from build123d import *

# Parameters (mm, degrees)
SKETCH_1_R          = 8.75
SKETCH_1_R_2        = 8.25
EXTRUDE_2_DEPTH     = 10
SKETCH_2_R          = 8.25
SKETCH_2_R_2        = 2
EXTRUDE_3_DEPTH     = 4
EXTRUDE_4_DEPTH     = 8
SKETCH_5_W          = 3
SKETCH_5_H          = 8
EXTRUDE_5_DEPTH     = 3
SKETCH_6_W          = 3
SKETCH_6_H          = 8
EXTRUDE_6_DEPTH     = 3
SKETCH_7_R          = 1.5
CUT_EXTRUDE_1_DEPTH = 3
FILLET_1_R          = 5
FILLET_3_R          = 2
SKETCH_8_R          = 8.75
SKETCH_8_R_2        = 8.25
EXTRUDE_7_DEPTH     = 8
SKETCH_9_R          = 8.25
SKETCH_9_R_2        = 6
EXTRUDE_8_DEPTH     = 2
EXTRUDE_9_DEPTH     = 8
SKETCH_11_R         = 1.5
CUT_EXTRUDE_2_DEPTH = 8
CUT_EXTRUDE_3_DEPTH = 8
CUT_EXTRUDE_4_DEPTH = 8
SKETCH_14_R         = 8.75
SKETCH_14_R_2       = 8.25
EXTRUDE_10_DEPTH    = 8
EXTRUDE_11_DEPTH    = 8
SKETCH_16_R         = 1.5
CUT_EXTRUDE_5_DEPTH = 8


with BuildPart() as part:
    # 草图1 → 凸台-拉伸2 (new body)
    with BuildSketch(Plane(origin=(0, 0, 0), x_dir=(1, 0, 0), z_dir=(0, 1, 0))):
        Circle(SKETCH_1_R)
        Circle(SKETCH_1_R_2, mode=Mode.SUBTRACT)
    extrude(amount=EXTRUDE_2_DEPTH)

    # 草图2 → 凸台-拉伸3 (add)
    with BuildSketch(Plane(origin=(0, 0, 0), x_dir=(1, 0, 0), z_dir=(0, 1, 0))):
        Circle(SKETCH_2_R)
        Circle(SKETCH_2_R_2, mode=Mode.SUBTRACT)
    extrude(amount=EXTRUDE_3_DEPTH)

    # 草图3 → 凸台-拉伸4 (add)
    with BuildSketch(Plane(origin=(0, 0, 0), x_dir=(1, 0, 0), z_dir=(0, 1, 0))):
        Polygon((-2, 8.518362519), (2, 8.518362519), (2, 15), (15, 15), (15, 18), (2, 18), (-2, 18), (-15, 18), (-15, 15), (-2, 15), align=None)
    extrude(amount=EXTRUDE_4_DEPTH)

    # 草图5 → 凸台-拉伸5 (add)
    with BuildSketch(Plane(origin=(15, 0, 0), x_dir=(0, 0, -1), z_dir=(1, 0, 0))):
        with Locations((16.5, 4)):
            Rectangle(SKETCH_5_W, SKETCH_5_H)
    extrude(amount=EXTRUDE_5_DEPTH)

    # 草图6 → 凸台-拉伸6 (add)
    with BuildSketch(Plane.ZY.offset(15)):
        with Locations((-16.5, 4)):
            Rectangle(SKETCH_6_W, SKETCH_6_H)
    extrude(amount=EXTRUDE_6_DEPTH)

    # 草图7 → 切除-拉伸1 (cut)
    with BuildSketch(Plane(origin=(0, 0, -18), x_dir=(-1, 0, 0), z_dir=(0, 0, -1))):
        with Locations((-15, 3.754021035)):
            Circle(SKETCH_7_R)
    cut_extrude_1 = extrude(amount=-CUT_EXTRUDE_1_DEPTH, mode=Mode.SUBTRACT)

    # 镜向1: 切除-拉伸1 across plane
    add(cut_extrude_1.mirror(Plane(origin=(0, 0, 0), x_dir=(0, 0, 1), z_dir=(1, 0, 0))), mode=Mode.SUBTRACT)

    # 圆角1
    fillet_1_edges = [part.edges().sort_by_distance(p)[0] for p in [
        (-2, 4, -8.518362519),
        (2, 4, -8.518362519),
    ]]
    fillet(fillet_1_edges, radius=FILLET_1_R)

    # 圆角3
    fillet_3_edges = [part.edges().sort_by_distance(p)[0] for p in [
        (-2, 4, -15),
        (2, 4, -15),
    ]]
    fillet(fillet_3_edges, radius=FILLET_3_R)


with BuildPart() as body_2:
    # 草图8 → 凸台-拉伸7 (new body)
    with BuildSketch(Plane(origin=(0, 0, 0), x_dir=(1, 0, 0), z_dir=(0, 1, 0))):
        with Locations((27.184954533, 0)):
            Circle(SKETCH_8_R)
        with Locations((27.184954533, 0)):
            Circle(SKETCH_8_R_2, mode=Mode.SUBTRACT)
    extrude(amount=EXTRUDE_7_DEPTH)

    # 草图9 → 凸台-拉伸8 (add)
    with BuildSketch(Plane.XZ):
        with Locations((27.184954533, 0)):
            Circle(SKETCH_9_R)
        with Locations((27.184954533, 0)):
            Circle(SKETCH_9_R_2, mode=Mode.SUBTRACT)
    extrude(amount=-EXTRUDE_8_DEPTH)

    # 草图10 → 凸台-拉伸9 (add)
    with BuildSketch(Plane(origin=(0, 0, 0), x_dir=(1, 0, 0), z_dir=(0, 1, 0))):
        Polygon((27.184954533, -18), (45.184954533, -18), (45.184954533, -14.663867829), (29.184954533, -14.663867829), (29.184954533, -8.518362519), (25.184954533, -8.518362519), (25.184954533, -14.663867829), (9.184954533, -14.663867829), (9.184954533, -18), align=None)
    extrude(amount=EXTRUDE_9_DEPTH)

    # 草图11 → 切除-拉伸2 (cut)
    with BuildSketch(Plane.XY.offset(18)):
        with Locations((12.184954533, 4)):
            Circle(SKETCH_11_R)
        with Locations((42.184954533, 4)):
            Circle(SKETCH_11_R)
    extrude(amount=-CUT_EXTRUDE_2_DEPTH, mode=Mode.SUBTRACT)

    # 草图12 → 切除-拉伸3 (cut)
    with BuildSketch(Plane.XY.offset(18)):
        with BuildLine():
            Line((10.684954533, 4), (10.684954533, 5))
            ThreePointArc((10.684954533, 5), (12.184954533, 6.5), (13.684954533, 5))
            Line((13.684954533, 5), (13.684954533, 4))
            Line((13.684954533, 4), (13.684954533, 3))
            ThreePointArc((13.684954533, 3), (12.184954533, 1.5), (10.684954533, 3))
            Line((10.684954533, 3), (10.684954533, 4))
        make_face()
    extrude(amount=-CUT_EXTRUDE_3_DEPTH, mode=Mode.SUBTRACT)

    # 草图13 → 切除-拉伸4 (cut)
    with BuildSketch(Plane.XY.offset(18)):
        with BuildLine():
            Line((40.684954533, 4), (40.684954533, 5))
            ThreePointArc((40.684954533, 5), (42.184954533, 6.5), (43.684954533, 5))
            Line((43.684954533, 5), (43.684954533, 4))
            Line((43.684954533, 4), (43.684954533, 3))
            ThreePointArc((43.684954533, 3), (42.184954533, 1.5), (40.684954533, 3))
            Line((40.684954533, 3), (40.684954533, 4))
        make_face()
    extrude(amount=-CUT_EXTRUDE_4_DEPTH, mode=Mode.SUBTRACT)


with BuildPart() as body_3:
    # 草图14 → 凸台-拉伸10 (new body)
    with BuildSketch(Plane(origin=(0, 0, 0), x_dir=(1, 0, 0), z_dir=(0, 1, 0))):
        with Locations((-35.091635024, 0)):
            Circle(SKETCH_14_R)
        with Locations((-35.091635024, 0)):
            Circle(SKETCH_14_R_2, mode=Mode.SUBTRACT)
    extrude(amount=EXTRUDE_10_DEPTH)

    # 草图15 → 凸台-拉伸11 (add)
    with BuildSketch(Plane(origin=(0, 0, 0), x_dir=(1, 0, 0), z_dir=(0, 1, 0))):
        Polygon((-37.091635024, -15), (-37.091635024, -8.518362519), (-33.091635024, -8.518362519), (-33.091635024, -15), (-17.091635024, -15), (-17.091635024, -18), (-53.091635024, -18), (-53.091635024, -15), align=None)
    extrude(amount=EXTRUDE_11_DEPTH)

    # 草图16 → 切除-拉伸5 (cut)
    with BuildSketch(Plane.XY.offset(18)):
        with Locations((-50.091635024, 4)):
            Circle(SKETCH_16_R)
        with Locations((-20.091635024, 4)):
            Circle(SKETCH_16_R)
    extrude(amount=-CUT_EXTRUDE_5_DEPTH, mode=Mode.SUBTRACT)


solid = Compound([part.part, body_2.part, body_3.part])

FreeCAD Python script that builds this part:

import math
import FreeCAD as App
import Part
import Sketcher
Q = App.Units.Quantity


def edges_at(feature, points):
    """Names of the edges that pass closest to the given points."""
    edges = feature.Shape.Edges
    near = lambda p: min(range(len(edges)), key=lambda i: edges[i].distToShape(Part.Vertex(*p))[0])
    return sorted({f"Edge{near(p) + 1}" for p in points})


def add_polygon(sketch, points):
    """Adds a closed chain of lines whose ends are joined by coincident constraints."""
    first, n = sketch.GeometryCount, len(points)
    for a, b in zip(points, points[1:] + points[:1]):
        sketch.addGeometry(Part.LineSegment(App.Vector(*a, 0), App.Vector(*b, 0)), False)
    for i in range(n):
        sketch.addConstraint(Sketcher.Constraint("Coincident", first + i, 2, first + (i + 1) % n, 1))

doc = App.newDocument("Part")
body = doc.addObject("PartDesign::Body", "Body")

# Sketch on XZ plane
sketch1 = body.newObject("Sketcher::SketchObject", "Sketch")
sketch1.AttachmentSupport = (doc.getObject("XZ_Plane"), [""])
sketch1.MapMode = "FlatFace"
sketch1.addGeometry(Part.Circle(App.Vector(0, 0, 0), App.Vector(0, 0, 1), 8.75), False)
sketch1.addGeometry(Part.Circle(App.Vector(0, 0, 0), App.Vector(0, 0, 1), 8.25), False)
sketch1.addConstraint(Sketcher.Constraint("Coincident", 0, 3, -1, 1))
sketch1.addConstraint(Sketcher.Constraint("Coincident", 1, 3, -1, 1))
sketch1.addConstraint(Sketcher.Constraint("Diameter", 0, Q("17.5 mm")))
sketch1.addConstraint(Sketcher.Constraint("Diameter", 1, Q("16.5 mm")))
pad1 = body.newObject("PartDesign::Pad", "Pad")
pad1.Profile = sketch1
pad1.Length = 10
pad1.Reversed = True

# Sketch on XZ plane
sketch2 = body.newObject("Sketcher::SketchObject", "Sketch001")
sketch2.AttachmentSupport = (doc.getObject("XZ_Plane"), [""])
sketch2.MapMode = "FlatFace"
sketch2.addGeometry(Part.Circle(App.Vector(0, 0, 0), App.Vector(0, 0, 1), 8.25), False)
sketch2.addGeometry(Part.Circle(App.Vector(0, 0, 0), App.Vector(0, 0, 1), 2), False)
sketch2.addConstraint(Sketcher.Constraint("Coincident", 0, 3, -1, 1))
sketch2.addConstraint(Sketcher.Constraint("Coincident", 1, 3, -1, 1))
sketch2.addConstraint(Sketcher.Constraint("Diameter", 1, Q("4 mm")))
sketch2.addConstraint(Sketcher.Constraint("Diameter", 0, Q("16.5 mm")))
pad2 = body.newObject("PartDesign::Pad", "Pad001")
pad2.Profile = sketch2
pad2.Length = 4
pad2.Reversed = True

# Sketch on XZ plane
sketch3 = body.newObject("Sketcher::SketchObject", "Sketch002")
sketch3.AttachmentSupport = (doc.getObject("XZ_Plane"), [""])
sketch3.MapMode = "FlatFace"
add_polygon(sketch3, [(-2, -8.518363), (2, -8.518363), (2, -15), (15, -15), (15, -18), (-15, -18), (-15, -15), (-2, -15)])  # lines 0-7
sketch3.addConstraint(Sketcher.Constraint("Horizontal", 0))
sketch3.addConstraint(Sketcher.Constraint("Vertical", 1))
sketch3.addConstraint(Sketcher.Constraint("Horizontal", 2))
sketch3.addConstraint(Sketcher.Constraint("Vertical", 3))
sketch3.addConstraint(Sketcher.Constraint("Horizontal", 4))
sketch3.addConstraint(Sketcher.Constraint("Vertical", 5))
sketch3.addConstraint(Sketcher.Constraint("Horizontal", 6))
sketch3.addConstraint(Sketcher.Constraint("Vertical", 7))
sketch3.addConstraint(Sketcher.Constraint("Symmetric", 2, 2, 5, 2, -2))
sketch3.addConstraint(Sketcher.Constraint("Equal", 2, 6))
sketch3.addConstraint(Sketcher.Constraint("DistanceX", 0, 1, 0, 2, Q("4 mm")))
sketch3.addConstraint(Sketcher.Constraint("DistanceX", 2, 1, 2, 2, Q("13 mm")))
sketch3.addConstraint(Sketcher.Constraint("DistanceY", 3, 2, 3, 1, Q("3 mm")))
sketch3.addConstraint(Sketcher.Constraint("DistanceY", 1, 2, -1, 1, Q("15 mm")))
sketch3.addConstraint(Sketcher.Constraint("DistanceY", 1, 2, 1, 1, Q("6.481637 mm")))
pad3 = body.newObject("PartDesign::Pad", "Pad002")
pad3.Profile = sketch3
pad3.Length = 8
pad3.Reversed = True

# Sketch on YZ plane
sketch4 = body.newObject("Sketcher::SketchObject", "Sketch003")
sketch4.AttachmentSupport = (doc.getObject("YZ_Plane"), [""])
sketch4.MapMode = "FlatFace"
sketch4.AttachmentOffset = App.Placement(App.Vector(0, 0, 15), App.Rotation())
add_polygon(sketch4, [(8, -15), (0, -15), (0, -18), (8, -18)])  # lines 0-3
sketch4.addConstraint(Sketcher.Constraint("Horizontal", 0))
sketch4.addConstraint(Sketcher.Constraint("Vertical", 1))
sketch4.addConstraint(Sketcher.Constraint("Horizontal", 2))
sketch4.addConstraint(Sketcher.Constraint("Vertical", 3))
sketch4.addConstraint(Sketcher.Constraint("PointOnObject", 0, 2, -2))
sketch4.addConstraint(Sketcher.Constraint("DistanceX", 0, 2, 0, 1, Q("8 mm")))
sketch4.addConstraint(Sketcher.Constraint("DistanceY", 1, 2, 1, 1, Q("3 mm")))
sketch4.addConstraint(Sketcher.Constraint("DistanceY", 0, 2, -1, 1, Q("15 mm")))
pad4 = body.newObject("PartDesign::Pad", "Pad003")
pad4.Profile = sketch4
pad4.Length = 3

# Sketch on YZ plane
sketch5 = body.newObject("Sketcher::SketchObject", "Sketch004")
sketch5.AttachmentSupport = (doc.getObject("YZ_Plane"), [""])
sketch5.MapMode = "FlatFace"
sketch5.AttachmentOffset = App.Placement(App.Vector(0, 0, -15), App.Rotation())
add_polygon(sketch5, [(8, -18), (0, -18), (0, -15), (8, -15)])  # lines 0-3
sketch5.addConstraint(Sketcher.Constraint("Horizontal", 0))
sketch5.addConstraint(Sketcher.Constraint("Vertical", 1))
sketch5.addConstraint(Sketcher.Constraint("Horizontal", 2))
sketch5.addConstraint(Sketcher.Constraint("Vertical", 3))
sketch5.addConstraint(Sketcher.Constraint("PointOnObject", 0, 2, -2))
sketch5.addConstraint(Sketcher.Constraint("DistanceX", 0, 2, 0, 1, Q("8 mm")))
sketch5.addConstraint(Sketcher.Constraint("DistanceY", 1, 1, 1, 2, Q("3 mm")))
sketch5.addConstraint(Sketcher.Constraint("DistanceY", 0, 2, -1, 1, Q("18 mm")))
pad5 = body.newObject("PartDesign::Pad", "Pad004")
pad5.Profile = sketch5
pad5.Length = 3
pad5.Reversed = True

# Sketch on XY plane
sketch6 = body.newObject("Sketcher::SketchObject", "Sketch005")
sketch6.AttachmentSupport = (doc.getObject("XY_Plane"), [""])
sketch6.MapMode = "FlatFace"
sketch6.AttachmentOffset = App.Placement(App.Vector(0, 0, -18), App.Rotation())
sketch6.addGeometry(Part.Circle(App.Vector(15, 3.754021, 0), App.Vector(0, 0, 1), 1.5), False)
sketch6.addConstraint(Sketcher.Constraint("Diameter", 0, Q("3 mm")))
sketch6.addConstraint(Sketcher.Constraint("DistanceX", -1, 1, 0, 3, Q("15 mm")))
sketch6.addConstraint(Sketcher.Constraint("DistanceY", -1, 1, 0, 3, Q("3.754021 mm")))
pocket1 = body.newObject("PartDesign::Pocket", "Pocket")
pocket1.Profile = sketch6
pocket1.Length = 3
pocket1.Reversed = True
doc.recompute()

mirrored = body.newObject("PartDesign::Mirrored", "Mirrored")
mirrored.Originals = [pocket1]
mirrored.MirrorPlane = (doc.getObject("YZ_Plane"), [""])
body.Tip = mirrored
doc.recompute()

fillet = body.newObject("PartDesign::Fillet", "Fillet")
fillet.Base = (mirrored, edges_at(mirrored, [(-2, 4, -8.518), (2, 4, -8.518)]))
fillet.Radius = 5
doc.recompute()

fillet2 = body.newObject("PartDesign::Fillet", "Fillet001")
fillet2.Base = (fillet, edges_at(fillet, [(-2, 4, -15), (2, 4, -15)]))
fillet2.Radius = 2
body2 = doc.addObject("PartDesign::Body", "Body001")

# Sketch on XZ plane
sketch7 = body2.newObject("Sketcher::SketchObject", "Sketch006")
sketch7.AttachmentSupport = (doc.getObject("XZ_Plane001"), [""])
sketch7.MapMode = "FlatFace"
sketch7.addGeometry(Part.Circle(App.Vector(27.184955, 0, 0), App.Vector(0, 0, 1), 8.75), False)
sketch7.addGeometry(Part.Circle(App.Vector(27.184955, 0, 0), App.Vector(0, 0, 1), 8.25), False)
sketch7.addConstraint(Sketcher.Constraint("Coincident", 1, 3, 0, 3))
sketch7.addConstraint(Sketcher.Constraint("PointOnObject", 0, 3, -1))
sketch7.addConstraint(Sketcher.Constraint("Diameter", 0, Q("17.5 mm")))
sketch7.addConstraint(Sketcher.Constraint("Diameter", 1, Q("16.5 mm")))
sketch7.addConstraint(Sketcher.Constraint("DistanceX", -1, 1, 0, 3, Q("27.184955 mm")))
pad6 = body2.newObject("PartDesign::Pad", "Pad005")
pad6.Profile = sketch7
pad6.Length = 8
pad6.Reversed = True

# Sketch on XZ plane
sketch8 = body2.newObject("Sketcher::SketchObject", "Sketch007")
sketch8.AttachmentSupport = (doc.getObject("XZ_Plane001"), [""])
sketch8.MapMode = "FlatFace"
sketch8.addGeometry(Part.Circle(App.Vector(27.184955, 0, 0), App.Vector(0, 0, 1), 8.25), False)
sketch8.addGeometry(Part.Circle(App.Vector(27.184955, 0, 0), App.Vector(0, 0, 1), 6), False)
sketch8.addConstraint(Sketcher.Constraint("Coincident", 1, 3, 0, 3))
sketch8.addConstraint(Sketcher.Constraint("PointOnObject", 0, 3, -1))
sketch8.addConstraint(Sketcher.Constraint("Diameter", 1, Q("12 mm")))
sketch8.addConstraint(Sketcher.Constraint("Diameter", 0, Q("16.5 mm")))
sketch8.addConstraint(Sketcher.Constraint("DistanceX", -1, 1, 0, 3, Q("27.184955 mm")))
pad7 = body2.newObject("PartDesign::Pad", "Pad006")
pad7.Profile = sketch8
pad7.Length = 2
pad7.Reversed = True

# Sketch on XZ plane
sketch9 = body2.newObject("Sketcher::SketchObject", "Sketch008")
sketch9.AttachmentSupport = (doc.getObject("XZ_Plane001"), [""])
sketch9.MapMode = "FlatFace"
add_polygon(sketch9, [(45.184955, 18), (45.184955, 14.663868), (29.184955, 14.663868), (29.184955, 8.518363), (25.184955, 8.518363), (25.184955, 14.663868), (9.184955, 14.663868), (9.184955, 18)])  # lines 0-7
sketch9.addConstraint(Sketcher.Constraint("Vertical", 0))
sketch9.addConstraint(Sketcher.Constraint("Horizontal", 1))
sketch9.addConstraint(Sketcher.Constraint("Vertical", 2))
sketch9.addConstraint(Sketcher.Constraint("Horizontal", 3))
sketch9.addConstraint(Sketcher.Constraint("Vertical", 4))
sketch9.addConstraint(Sketcher.Constraint("Horizontal", 5))
sketch9.addConstraint(Sketcher.Constraint("Vertical", 6))
sketch9.addConstraint(Sketcher.Constraint("Horizontal", 7))
sketch9.addConstraint(Sketcher.Constraint("Horizontal", 1, 2, 4, 2))
sketch9.addConstraint(Sketcher.Constraint("Equal", 1, 5))
sketch9.addConstraint(Sketcher.Constraint("DistanceX", 1, 2, 1, 1, Q("16 mm")))
sketch9.addConstraint(Sketcher.Constraint("DistanceX", 3, 2, 3, 1, Q("4 mm")))
sketch9.addConstraint(Sketcher.Constraint("DistanceY", -1, 1, 6, 2, Q("18 mm")))
sketch9.addConstraint(Sketcher.Constraint("DistanceY", 0, 2, 0, 1, Q("3.336132 mm")))
sketch9.addConstraint(Sketcher.Constraint("DistanceY", 2, 2, 2, 1, Q("6.145505 mm")))
sketch9.addConstraint(Sketcher.Constraint("DistanceX", -1, 1, 0, 2, Q("45.184955 mm")))
pad8 = body2.newObject("PartDesign::Pad", "Pad007")
pad8.Profile = sketch9
pad8.Length = 8
pad8.Reversed = True

# Sketch on XY plane
sketch10 = body2.newObject("Sketcher::SketchObject", "Sketch009")
sketch10.AttachmentSupport = (doc.getObject("XY_Plane001"), [""])
sketch10.MapMode = "FlatFace"
sketch10.AttachmentOffset = App.Placement(App.Vector(0, 0, 18), App.Rotation())
sketch10.addGeometry(Part.Circle(App.Vector(12.184955, 4, 0), App.Vector(0, 0, 1), 1.5), False)
sketch10.addGeometry(Part.Circle(App.Vector(42.184955, 4, 0), App.Vector(0, 0, 1), 1.5), False)
sketch10.addConstraint(Sketcher.Constraint("Equal", 0, 1))
sketch10.addConstraint(Sketcher.Constraint("Horizontal", 0, 3, 1, 3))
sketch10.addConstraint(Sketcher.Constraint("Diameter", 0, Q("3 mm")))
sketch10.addConstraint(Sketcher.Constraint("DistanceY", -1, 1, 0, 3, Q("4 mm")))
sketch10.addConstraint(Sketcher.Constraint("DistanceX", 0, 3, 1, 3, Q("30 mm")))
sketch10.addConstraint(Sketcher.Constraint("DistanceX", -1, 1, 0, 3, Q("12.184955 mm")))
pocket2 = body2.newObject("PartDesign::Pocket", "Pocket001")
pocket2.Profile = sketch10
pocket2.Length = 8

# Sketch on XY plane
sketch11 = body2.newObject("Sketcher::SketchObject", "Sketch010")
sketch11.AttachmentSupport = (doc.getObject("XY_Plane001"), [""])
sketch11.MapMode = "FlatFace"
sketch11.AttachmentOffset = App.Placement(App.Vector(0, 0, 18), App.Rotation())
sketch11.addGeometry(Part.ArcOfCircle(Part.Circle(App.Vector(12.184955, 5, 0), App.Vector(0, 0, 1), 1.5), math.radians(0), math.radians(180)), False)
sketch11.addGeometry(Part.LineSegment(App.Vector(10.684955, 5, 0), App.Vector(10.684955, 3, 0)), False)
sketch11.addGeometry(Part.ArcOfCircle(Part.Circle(App.Vector(12.184955, 3, 0), App.Vector(0, 0, 1), 1.5), math.radians(180), math.radians(360)), False)
sketch11.addGeometry(Part.LineSegment(App.Vector(13.684955, 3, 0), App.Vector(13.684955, 5, 0)), False)
sketch11.addConstraint(Sketcher.Constraint("Tangent", 0, 2, 1, 1))
sketch11.addConstraint(Sketcher.Constraint("Tangent", 1, 2, 2, 1))
sketch11.addConstraint(Sketcher.Constraint("Tangent", 2, 2, 3, 1))
sketch11.addConstraint(Sketcher.Constraint("Tangent", 3, 2, 0, 1))
sketch11.addConstraint(Sketcher.Constraint("Vertical", 1))
sketch11.addConstraint(Sketcher.Constraint("Vertical", 3))
sketch11.addConstraint(Sketcher.Constraint("Radius", 0, Q("1.5 mm")))
sketch11.addConstraint(Sketcher.Constraint("DistanceY", 1, 2, 1, 1, Q("2 mm")))
sketch11.addConstraint(Sketcher.Constraint("DistanceY", -1, 1, 0, 3, Q("5 mm")))
sketch11.addConstraint(Sketcher.Constraint("DistanceX", -1, 1, 0, 3, Q("12.184955 mm")))
pocket3 = body2.newObject("PartDesign::Pocket", "Pocket002")
pocket3.Profile = sketch11
pocket3.Length = 8

# Sketch on XY plane
sketch12 = body2.newObject("Sketcher::SketchObject", "Sketch011")
sketch12.AttachmentSupport = (doc.getObject("XY_Plane001"), [""])
sketch12.MapMode = "FlatFace"
sketch12.AttachmentOffset = App.Placement(App.Vector(0, 0, 18), App.Rotation())
sketch12.addGeometry(Part.ArcOfCircle(Part.Circle(App.Vector(42.184955, 5, 0), App.Vector(0, 0, 1), 1.5), math.radians(0), math.radians(180)), False)
sketch12.addGeometry(Part.LineSegment(App.Vector(40.684955, 5, 0), App.Vector(40.684955, 3, 0)), False)
sketch12.addGeometry(Part.ArcOfCircle(Part.Circle(App.Vector(42.184955, 3, 0), App.Vector(0, 0, 1), 1.5), math.radians(180), math.radians(360)), False)
sketch12.addGeometry(Part.LineSegment(App.Vector(43.684955, 3, 0), App.Vector(43.684955, 5, 0)), False)
sketch12.addConstraint(Sketcher.Constraint("Tangent", 0, 2, 1, 1))
sketch12.addConstraint(Sketcher.Constraint("Tangent", 1, 2, 2, 1))
sketch12.addConstraint(Sketcher.Constraint("Tangent", 2, 2, 3, 1))
sketch12.addConstraint(Sketcher.Constraint("Tangent", 3, 2, 0, 1))
sketch12.addConstraint(Sketcher.Constraint("Vertical", 1))
sketch12.addConstraint(Sketcher.Constraint("Vertical", 3))
sketch12.addConstraint(Sketcher.Constraint("Radius", 0, Q("1.5 mm")))
sketch12.addConstraint(Sketcher.Constraint("DistanceY", 1, 2, 1, 1, Q("2 mm")))
sketch12.addConstraint(Sketcher.Constraint("DistanceY", -1, 1, 0, 3, Q("5 mm")))
sketch12.addConstraint(Sketcher.Constraint("DistanceX", -1, 1, 0, 3, Q("42.184955 mm")))
pocket4 = body2.newObject("PartDesign::Pocket", "Pocket003")
pocket4.Profile = sketch12
pocket4.Length = 8
body3 = doc.addObject("PartDesign::Body", "Body002")

# Sketch on XZ plane
sketch13 = body3.newObject("Sketcher::SketchObject", "Sketch012")
sketch13.AttachmentSupport = (doc.getObject("XZ_Plane002"), [""])
sketch13.MapMode = "FlatFace"
sketch13.addGeometry(Part.Circle(App.Vector(-35.091635, 0, 0), App.Vector(0, 0, 1), 8.75), False)
sketch13.addGeometry(Part.Circle(App.Vector(-35.091635, 0, 0), App.Vector(0, 0, 1), 8.25), False)
sketch13.addConstraint(Sketcher.Constraint("Coincident", 1, 3, 0, 3))
sketch13.addConstraint(Sketcher.Constraint("PointOnObject", 0, 3, -1))
sketch13.addConstraint(Sketcher.Constraint("Diameter", 0, Q("17.5 mm")))
sketch13.addConstraint(Sketcher.Constraint("Diameter", 1, Q("16.5 mm")))
sketch13.addConstraint(Sketcher.Constraint("DistanceX", 0, 3, -1, 1, Q("35.091635 mm")))
pad9 = body3.newObject("PartDesign::Pad", "Pad008")
pad9.Profile = sketch13
pad9.Length = 8
pad9.Reversed = True

# Sketch on XZ plane
sketch14 = body3.newObject("Sketcher::SketchObject", "Sketch013")
sketch14.AttachmentSupport = (doc.getObject("XZ_Plane002"), [""])
sketch14.MapMode = "FlatFace"
add_polygon(sketch14, [(-37.091635, 8.518363), (-37.091635, 15), (-53.091635, 15), (-53.091635, 18), (-17.091635, 18), (-17.091635, 15), (-33.091635, 15), (-33.091635, 8.518363)])  # lines 0-7
sketch14.addConstraint(Sketcher.Constraint("Vertical", 0))
sketch14.addConstraint(Sketcher.Constraint("Horizontal", 1))
sketch14.addConstraint(Sketcher.Constraint("Vertical", 2))
sketch14.addConstraint(Sketcher.Constraint("Horizontal", 3))
sketch14.addConstraint(Sketcher.Constraint("Vertical", 4))
sketch14.addConstraint(Sketcher.Constraint("Horizontal", 5))
sketch14.addConstraint(Sketcher.Constraint("Vertical", 6))
sketch14.addConstraint(Sketcher.Constraint("Horizontal", 7))
sketch14.addConstraint(Sketcher.Constraint("Horizontal", 1, 2, 4, 2))
sketch14.addConstraint(Sketcher.Constraint("Equal", 1, 5))
sketch14.addConstraint(Sketcher.Constraint("DistanceX", 1, 2, 1, 1, Q("16 mm")))
sketch14.addConstraint(Sketcher.Constraint("DistanceX", 3, 1, 3, 2, Q("36 mm")))
sketch14.addConstraint(Sketcher.Constraint("DistanceY", 2, 1, 2, 2, Q("3 mm")))
sketch14.addConstraint(Sketcher.Constraint("DistanceY", -1, 1, 0, 2, Q("15 mm")))
sketch14.addConstraint(Sketcher.Constraint("DistanceY", 0, 1, 0, 2, Q("6.481637 mm")))
sketch14.addConstraint(Sketcher.Constraint("DistanceX", 0, 2, -1, 1, Q("37.091635 mm")))
pad10 = body3.newObject("PartDesign::Pad", "Pad009")
pad10.Profile = sketch14
pad10.Length = 8
pad10.Reversed = True

# Sketch on XY plane
sketch15 = body3.newObject("Sketcher::SketchObject", "Sketch014")
sketch15.AttachmentSupport = (doc.getObject("XY_Plane002"), [""])
sketch15.MapMode = "FlatFace"
sketch15.AttachmentOffset = App.Placement(App.Vector(0, 0, 18), App.Rotation())
sketch15.addGeometry(Part.Circle(App.Vector(-50.091635, 4, 0), App.Vector(0, 0, 1), 1.5), False)
sketch15.addGeometry(Part.Circle(App.Vector(-20.091635, 4, 0), App.Vector(0, 0, 1), 1.5), False)
sketch15.addConstraint(Sketcher.Constraint("Equal", 0, 1))
sketch15.addConstraint(Sketcher.Constraint("Horizontal", 0, 3, 1, 3))
sketch15.addConstraint(Sketcher.Constraint("Diameter", 0, Q("3 mm")))
sketch15.addConstraint(Sketcher.Constraint("DistanceY", -1, 1, 0, 3, Q("4 mm")))
sketch15.addConstraint(Sketcher.Constraint("DistanceX", 0, 3, 1, 3, Q("30 mm")))
sketch15.addConstraint(Sketcher.Constraint("DistanceX", 0, 3, -1, 1, Q("50.091635 mm")))
pocket5 = body3.newObject("PartDesign::Pocket", "Pocket004")
pocket5.Profile = sketch15
pocket5.Length = 8

doc.recompute()
